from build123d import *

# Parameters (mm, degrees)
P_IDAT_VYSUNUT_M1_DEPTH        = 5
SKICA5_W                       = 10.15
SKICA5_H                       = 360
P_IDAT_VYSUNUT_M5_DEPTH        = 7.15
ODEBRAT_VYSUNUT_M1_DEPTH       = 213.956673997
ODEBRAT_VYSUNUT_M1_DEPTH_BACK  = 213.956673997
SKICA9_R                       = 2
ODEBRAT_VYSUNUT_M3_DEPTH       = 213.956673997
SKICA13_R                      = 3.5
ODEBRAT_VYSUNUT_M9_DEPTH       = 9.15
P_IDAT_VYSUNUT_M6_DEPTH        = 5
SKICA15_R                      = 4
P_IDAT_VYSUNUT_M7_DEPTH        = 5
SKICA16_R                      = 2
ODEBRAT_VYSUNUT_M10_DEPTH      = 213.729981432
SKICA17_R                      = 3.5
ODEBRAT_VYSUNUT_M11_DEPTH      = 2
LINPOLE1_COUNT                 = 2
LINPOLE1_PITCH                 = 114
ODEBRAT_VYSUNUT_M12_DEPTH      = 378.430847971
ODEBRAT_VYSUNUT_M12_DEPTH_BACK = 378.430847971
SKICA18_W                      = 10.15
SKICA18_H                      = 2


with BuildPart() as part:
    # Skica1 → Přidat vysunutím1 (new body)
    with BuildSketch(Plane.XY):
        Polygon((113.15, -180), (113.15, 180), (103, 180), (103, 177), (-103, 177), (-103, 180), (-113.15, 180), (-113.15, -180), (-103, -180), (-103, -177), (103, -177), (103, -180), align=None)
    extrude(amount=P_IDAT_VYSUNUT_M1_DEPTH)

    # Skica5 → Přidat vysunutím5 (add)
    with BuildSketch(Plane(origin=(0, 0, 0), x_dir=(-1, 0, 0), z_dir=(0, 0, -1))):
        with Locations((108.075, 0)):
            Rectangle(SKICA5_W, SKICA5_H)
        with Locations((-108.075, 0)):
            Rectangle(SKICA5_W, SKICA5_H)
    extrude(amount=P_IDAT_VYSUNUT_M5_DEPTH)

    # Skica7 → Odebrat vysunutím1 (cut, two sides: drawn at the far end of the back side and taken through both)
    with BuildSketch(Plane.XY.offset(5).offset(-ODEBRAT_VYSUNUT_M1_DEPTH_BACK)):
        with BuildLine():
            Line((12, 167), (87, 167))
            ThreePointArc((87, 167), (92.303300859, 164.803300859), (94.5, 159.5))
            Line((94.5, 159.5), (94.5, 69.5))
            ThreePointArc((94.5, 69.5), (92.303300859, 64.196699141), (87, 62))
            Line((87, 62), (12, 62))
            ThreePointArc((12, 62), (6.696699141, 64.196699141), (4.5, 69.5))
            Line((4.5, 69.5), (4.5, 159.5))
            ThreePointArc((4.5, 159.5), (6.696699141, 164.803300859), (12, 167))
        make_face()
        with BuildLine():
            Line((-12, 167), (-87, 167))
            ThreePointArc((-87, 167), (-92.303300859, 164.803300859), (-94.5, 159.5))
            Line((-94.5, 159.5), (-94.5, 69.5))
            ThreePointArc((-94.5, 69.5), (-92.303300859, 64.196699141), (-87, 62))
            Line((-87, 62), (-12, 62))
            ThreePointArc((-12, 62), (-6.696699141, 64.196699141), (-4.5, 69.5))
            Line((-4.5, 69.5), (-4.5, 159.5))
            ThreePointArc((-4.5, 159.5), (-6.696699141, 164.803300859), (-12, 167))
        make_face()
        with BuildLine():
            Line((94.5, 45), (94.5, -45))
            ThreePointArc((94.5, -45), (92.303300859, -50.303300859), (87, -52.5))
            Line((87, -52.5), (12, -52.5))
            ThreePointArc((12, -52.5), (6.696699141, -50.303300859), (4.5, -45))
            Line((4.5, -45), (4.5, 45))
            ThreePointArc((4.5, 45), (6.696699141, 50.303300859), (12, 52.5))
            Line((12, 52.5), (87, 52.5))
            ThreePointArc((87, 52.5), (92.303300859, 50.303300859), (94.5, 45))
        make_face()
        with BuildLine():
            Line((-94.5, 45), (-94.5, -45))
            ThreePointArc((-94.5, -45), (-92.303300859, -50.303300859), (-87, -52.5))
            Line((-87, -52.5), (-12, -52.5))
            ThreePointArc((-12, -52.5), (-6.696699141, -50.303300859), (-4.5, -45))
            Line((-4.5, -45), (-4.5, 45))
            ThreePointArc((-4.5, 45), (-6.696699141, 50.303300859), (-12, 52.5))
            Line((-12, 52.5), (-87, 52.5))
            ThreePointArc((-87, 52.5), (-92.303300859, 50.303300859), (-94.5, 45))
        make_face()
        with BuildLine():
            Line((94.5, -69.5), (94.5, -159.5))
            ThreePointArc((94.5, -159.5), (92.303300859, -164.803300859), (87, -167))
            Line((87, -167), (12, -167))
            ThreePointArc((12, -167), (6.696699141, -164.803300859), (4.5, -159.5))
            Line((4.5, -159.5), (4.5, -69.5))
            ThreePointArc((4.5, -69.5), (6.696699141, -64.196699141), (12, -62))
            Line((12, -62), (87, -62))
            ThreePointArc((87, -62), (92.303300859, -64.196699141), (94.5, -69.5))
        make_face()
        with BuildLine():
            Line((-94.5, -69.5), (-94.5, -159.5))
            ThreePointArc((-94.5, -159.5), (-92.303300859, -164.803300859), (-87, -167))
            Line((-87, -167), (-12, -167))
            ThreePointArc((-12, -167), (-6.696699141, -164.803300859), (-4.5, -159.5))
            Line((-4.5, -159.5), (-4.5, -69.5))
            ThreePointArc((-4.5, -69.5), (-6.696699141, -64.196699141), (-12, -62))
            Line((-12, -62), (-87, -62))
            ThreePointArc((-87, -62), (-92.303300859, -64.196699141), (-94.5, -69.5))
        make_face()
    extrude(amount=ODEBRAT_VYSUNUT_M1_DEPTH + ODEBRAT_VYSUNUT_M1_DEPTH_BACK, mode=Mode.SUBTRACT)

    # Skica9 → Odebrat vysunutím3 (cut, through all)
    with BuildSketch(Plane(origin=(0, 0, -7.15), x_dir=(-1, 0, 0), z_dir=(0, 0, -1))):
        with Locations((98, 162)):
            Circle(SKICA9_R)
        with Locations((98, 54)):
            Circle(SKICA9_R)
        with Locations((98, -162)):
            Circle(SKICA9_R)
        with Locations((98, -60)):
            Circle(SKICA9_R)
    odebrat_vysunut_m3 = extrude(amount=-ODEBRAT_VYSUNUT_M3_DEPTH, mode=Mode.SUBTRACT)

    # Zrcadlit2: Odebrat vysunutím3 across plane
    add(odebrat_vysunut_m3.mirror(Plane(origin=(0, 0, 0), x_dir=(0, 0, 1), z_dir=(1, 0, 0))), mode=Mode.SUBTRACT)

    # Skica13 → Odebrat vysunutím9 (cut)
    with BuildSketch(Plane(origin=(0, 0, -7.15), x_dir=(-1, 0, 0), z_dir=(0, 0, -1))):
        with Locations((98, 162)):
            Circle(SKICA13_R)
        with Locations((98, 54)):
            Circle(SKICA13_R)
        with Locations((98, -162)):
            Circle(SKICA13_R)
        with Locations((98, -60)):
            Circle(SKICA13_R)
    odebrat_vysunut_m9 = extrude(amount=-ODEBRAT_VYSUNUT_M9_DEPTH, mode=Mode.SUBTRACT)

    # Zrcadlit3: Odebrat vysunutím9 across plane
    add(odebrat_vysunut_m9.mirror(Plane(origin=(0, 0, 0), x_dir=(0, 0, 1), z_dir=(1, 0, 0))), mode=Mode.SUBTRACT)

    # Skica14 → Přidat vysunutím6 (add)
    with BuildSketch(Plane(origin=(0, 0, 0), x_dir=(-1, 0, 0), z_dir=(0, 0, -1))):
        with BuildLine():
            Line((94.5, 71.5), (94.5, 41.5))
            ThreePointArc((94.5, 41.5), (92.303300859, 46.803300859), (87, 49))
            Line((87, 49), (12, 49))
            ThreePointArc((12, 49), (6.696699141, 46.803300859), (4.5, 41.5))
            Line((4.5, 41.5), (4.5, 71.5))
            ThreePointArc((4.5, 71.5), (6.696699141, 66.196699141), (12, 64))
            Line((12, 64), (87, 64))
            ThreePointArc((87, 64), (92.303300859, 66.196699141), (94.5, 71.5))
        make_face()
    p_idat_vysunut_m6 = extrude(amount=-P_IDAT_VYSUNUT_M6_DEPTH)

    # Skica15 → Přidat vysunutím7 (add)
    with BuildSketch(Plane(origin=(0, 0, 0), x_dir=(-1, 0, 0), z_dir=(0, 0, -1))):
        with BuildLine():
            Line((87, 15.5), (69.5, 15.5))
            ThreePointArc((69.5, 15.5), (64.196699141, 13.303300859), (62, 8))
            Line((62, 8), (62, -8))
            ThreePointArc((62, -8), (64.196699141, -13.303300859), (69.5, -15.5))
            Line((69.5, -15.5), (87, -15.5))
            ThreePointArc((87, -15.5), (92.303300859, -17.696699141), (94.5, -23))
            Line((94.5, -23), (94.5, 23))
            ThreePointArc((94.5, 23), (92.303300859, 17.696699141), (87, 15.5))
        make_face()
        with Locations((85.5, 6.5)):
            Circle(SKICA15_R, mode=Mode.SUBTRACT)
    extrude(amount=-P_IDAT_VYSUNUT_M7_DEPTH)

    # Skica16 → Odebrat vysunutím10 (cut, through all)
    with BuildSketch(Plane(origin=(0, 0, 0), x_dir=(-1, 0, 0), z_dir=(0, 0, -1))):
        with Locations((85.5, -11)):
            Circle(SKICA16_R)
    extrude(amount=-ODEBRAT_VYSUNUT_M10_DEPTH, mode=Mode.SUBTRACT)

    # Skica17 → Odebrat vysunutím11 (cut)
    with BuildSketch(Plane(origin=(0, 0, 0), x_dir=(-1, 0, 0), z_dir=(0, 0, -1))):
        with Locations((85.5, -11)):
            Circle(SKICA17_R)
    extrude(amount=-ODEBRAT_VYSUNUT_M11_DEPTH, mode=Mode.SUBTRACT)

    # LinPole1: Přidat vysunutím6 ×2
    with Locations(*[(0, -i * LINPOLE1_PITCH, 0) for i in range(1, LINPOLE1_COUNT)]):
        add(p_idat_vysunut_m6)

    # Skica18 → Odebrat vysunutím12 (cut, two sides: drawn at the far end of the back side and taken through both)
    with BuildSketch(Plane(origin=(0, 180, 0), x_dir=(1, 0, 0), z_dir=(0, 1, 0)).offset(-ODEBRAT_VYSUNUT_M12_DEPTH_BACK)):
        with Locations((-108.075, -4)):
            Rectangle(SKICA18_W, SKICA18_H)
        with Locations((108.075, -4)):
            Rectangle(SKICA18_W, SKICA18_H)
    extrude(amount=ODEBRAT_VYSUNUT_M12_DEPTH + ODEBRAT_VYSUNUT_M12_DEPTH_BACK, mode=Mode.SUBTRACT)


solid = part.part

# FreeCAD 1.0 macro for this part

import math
import FreeCAD as App
import Part
import Sketcher

doc = App.newDocument("Part")
body = doc.addObject("PartDesign::Body", "Body")

# Sketch on XY plane
sketch1 = doc.addObject("Sketcher::SketchObject", "Sketch")
body.addObject(sketch1)
sketch1.AttachmentSupport = (doc.XY_Plane, [""])
sketch1.MapMode = "FlatFace"
sketch1.addGeometry(Part.LineSegment(App.Vector(113.15, -180, 0), App.Vector(113.15, 180, 0)), False)
sketch1.addGeometry(Part.LineSegment(App.Vector(113.15, 180, 0), App.Vector(103, 180, 0)), False)
sketch1.addGeometry(Part.LineSegment(App.Vector(103, 180, 0), App.Vector(103, 177, 0)), False)
sketch1.addGeometry(Part.LineSegment(App.Vector(103, 177, 0), App.Vector(-103, 177, 0)), False)
sketch1.addGeometry(Part.LineSegment(App.Vector(-103, 177, 0), App.Vector(-103, 180, 0)), False)
sketch1.addGeometry(Part.LineSegment(App.Vector(-103, 180, 0), App.Vector(-113.15, 180, 0)), False)
sketch1.addGeometry(Part.LineSegment(App.Vector(-113.15, 180, 0), App.Vector(-113.15, -180, 0)), False)
sketch1.addGeometry(Part.LineSegment(App.Vector(-113.15, -180, 0), App.Vector(-103, -180, 0)), False)
sketch1.addGeometry(Part.LineSegment(App.Vector(-103, -180, 0), App.Vector(-103, -177, 0)), False)
sketch1.addGeometry(Part.LineSegment(App.Vector(-103, -177, 0), App.Vector(103, -177, 0)), False)
sketch1.addGeometry(Part.LineSegment(App.Vector(103, -177, 0), App.Vector(103, -180, 0)), False)
sketch1.addGeometry(Part.LineSegment(App.Vector(103, -180, 0), App.Vector(113.15, -180, 0)), False)
sketch1.addConstraint(Sketcher.Constraint("Coincident", 0, 2, 1, 1))
sketch1.addConstraint(Sketcher.Constraint("Coincident", 1, 2, 2, 1))
sketch1.addConstraint(Sketcher.Constraint("Coincident", 2, 2, 3, 1))
sketch1.addConstraint(Sketcher.Constraint("Coincident", 3, 2, 4, 1))
sketch1.addConstraint(Sketcher.Constraint("Coincident", 4, 2, 5, 1))
sketch1.addConstraint(Sketcher.Constraint("Coincident", 5, 2, 6, 1))
sketch1.addConstraint(Sketcher.Constraint("Coincident", 6, 2, 7, 1))
sketch1.addConstraint(Sketcher.Constraint("Coincident", 7, 2, 8, 1))
sketch1.addConstraint(Sketcher.Constraint("Coincident", 8, 2, 9, 1))
sketch1.addConstraint(Sketcher.Constraint("Coincident", 9, 2, 10, 1))
sketch1.addConstraint(Sketcher.Constraint("Coincident", 10, 2, 11, 1))
sketch1.addConstraint(Sketcher.Constraint("Coincident", 11, 2, 0, 1))
sketch1.addConstraint(Sketcher.Constraint("Vertical", 0))
sketch1.addConstraint(Sketcher.Constraint("Horizontal", 1))
sketch1.addConstraint(Sketcher.Constraint("Vertical", 2))
sketch1.addConstraint(Sketcher.Constraint("Horizontal", 3))
sketch1.addConstraint(Sketcher.Constraint("Vertical", 4))
sketch1.addConstraint(Sketcher.Constraint("Horizontal", 5))
sketch1.addConstraint(Sketcher.Constraint("Vertical", 6))
sketch1.addConstraint(Sketcher.Constraint("Horizontal", 7))
sketch1.addConstraint(Sketcher.Constraint("Vertical", 8))
sketch1.addConstraint(Sketcher.Constraint("Horizontal", 9))
sketch1.addConstraint(Sketcher.Constraint("Vertical", 10))
sketch1.addConstraint(Sketcher.Constraint("Horizontal", 11))
sketch1.addConstraint(Sketcher.Constraint("Symmetric", 0, 2, 6, 2, -1, 1))
sketch1.addConstraint(Sketcher.Constraint("Symmetric", 2, 2, 8, 2, -1, 1))
sketch1.addConstraint(Sketcher.Constraint("Symmetric", 4, 2, 10, 2, -1, 1))
sketch1.addConstraint(Sketcher.Constraint("Symmetric", 1, 2, 4, 2, -2))
sketch1.addConstraint(Sketcher.Constraint("DistanceX", 3, 2, 3, 1, 206.0))
sketch1.addConstraint(Sketcher.Constraint("DistanceY", 0, 1, 0, 2, 360.0))
sketch1.addConstraint(Sketcher.Constraint("DistanceY", 2, 2, 2, 1, 3.0))
sketch1.addConstraint(Sketcher.Constraint("DistanceX", 1, 2, 1, 1, 10.15))
pad1 = doc.addObject("PartDesign::Pad", "Pad")
body.addObject(pad1)
pad1.Profile = sketch1
pad1.Length = 5

# Sketch on XY plane
sketch2 = doc.addObject("Sketcher::SketchObject", "Sketch001")
body.addObject(sketch2)
sketch2.AttachmentSupport = (doc.XY_Plane, [""])
sketch2.MapMode = "FlatFace"
sketch2.addGeometry(Part.LineSegment(App.Vector(-103, 180, 0), App.Vector(-103, -180, 0)), False)
sketch2.addGeometry(Part.LineSegment(App.Vector(-103, -180, 0), App.Vector(-113.15, -180, 0)), False)
sketch2.addGeometry(Part.LineSegment(App.Vector(-113.15, -180, 0), App.Vector(-113.15, 180, 0)), False)
sketch2.addGeometry(Part.LineSegment(App.Vector(-113.15, 180, 0), App.Vector(-103, 180, 0)), False)
sketch2.addGeometry(Part.LineSegment(App.Vector(113.15, 180, 0), App.Vector(113.15, -180, 0)), False)
sketch2.addGeometry(Part.LineSegment(App.Vector(113.15, -180, 0), App.Vector(103, -180, 0)), False)
sketch2.addGeometry(Part.LineSegment(App.Vector(103, -180, 0), App.Vector(103, 180, 0)), False)
sketch2.addGeometry(Part.LineSegment(App.Vector(103, 180, 0), App.Vector(113.15, 180, 0)), False)
sketch2.addConstraint(Sketcher.Constraint("Coincident", 0, 2, 1, 1))
sketch2.addConstraint(Sketcher.Constraint("Coincident", 1, 2, 2, 1))
sketch2.addConstraint(Sketcher.Constraint("Coincident", 2, 2, 3, 1))
sketch2.addConstraint(Sketcher.Constraint("Coincident", 3, 2, 0, 1))
sketch2.addConstraint(Sketcher.Constraint("Coincident", 4, 2, 5, 1))
sketch2.addConstraint(Sketcher.Constraint("Coincident", 5, 2, 6, 1))
sketch2.addConstraint(Sketcher.Constraint("Coincident", 6, 2, 7, 1))
sketch2.addConstraint(Sketcher.Constraint("Coincident", 7, 2, 4, 1))
sketch2.addConstraint(Sketcher.Constraint("Vertical", 0))
sketch2.addConstraint(Sketcher.Constraint("Horizontal", 1))
sketch2.addConstraint(Sketcher.Constraint("Vertical", 2))
sketch2.addConstraint(Sketcher.Constraint("Horizontal", 3))
sketch2.addConstraint(Sketcher.Constraint("Vertical", 4))
sketch2.addConstraint(Sketcher.Constraint("Horizontal", 5))
sketch2.addConstraint(Sketcher.Constraint("Vertical", 6))
sketch2.addConstraint(Sketcher.Constraint("Horizontal", 7))
sketch2.addConstraint(Sketcher.Constraint("Symmetric", 2, 2, 4, 2, -1, 1))
sketch2.addConstraint(Sketcher.Constraint("Symmetric", 0, 2, 6, 2, -1, 1))
sketch2.addConstraint(Sketcher.Constraint("Horizontal", 1, 2, 4, 2))
sketch2.addConstraint(Sketcher.Constraint("DistanceY", 0, 2, 0, 1, 360.0))
sketch2.addConstraint(Sketcher.Constraint("DistanceX", 0, 2, -1, 1, 103.0))
sketch2.addConstraint(Sketcher.Constraint("DistanceX", 1, 2, 1, 1, 10.15))
pad2 = doc.addObject("PartDesign::Pad", "Pad001")
body.addObject(pad2)
pad2.Profile = sketch2
pad2.Length = 7.15
pad2.Reversed = True

# Sketch on XY plane
sketch3 = doc.addObject("Sketcher::SketchObject", "Sketch002")
body.addObject(sketch3)
sketch3.AttachmentSupport = (doc.XY_Plane, [""])
sketch3.MapMode = "FlatFace"
sketch3.AttachmentOffset = App.Placement(App.Vector(0, 0, 5), App.Rotation())
sketch3.addGeometry(Part.LineSegment(App.Vector(87, 167, 0), App.Vector(12, 167, 0)), False)
sketch3.addGeometry(Part.ArcOfCircle(Part.Circle(App.Vector(12, 159.5, 0), App.Vector(0, 0, 1), 7.5), math.radians(90), math.radians(180)), False)
sketch3.addGeometry(Part.LineSegment(App.Vector(4.5, 159.5, 0), App.Vector(4.5, 69.5, 0)), False)
sketch3.addGeometry(Part.ArcOfCircle(Part.Circle(App.Vector(12, 69.5, 0), App.Vector(0, 0, 1), 7.5), math.radians(180), math.radians(270)), False)
sketch3.addGeometry(Part.LineSegment(App.Vector(12, 62, 0), App.Vector(87, 62, 0)), False)
sketch3.addGeometry(Part.ArcOfCircle(Part.Circle(App.Vector(87, 69.5, 0), App.Vector(0, 0, 1), 7.5), math.radians(-90), math.radians(0)), False)
sketch3.addGeometry(Part.LineSegment(App.Vector(94.5, 69.5, 0), App.Vector(94.5, 159.5, 0)), False)
sketch3.addGeometry(Part.ArcOfCircle(Part.Circle(App.Vector(87, 159.5, 0), App.Vector(0, 0, 1), 7.5), math.radians(0), math.radians(90)), False)
sketch3.addGeometry(Part.LineSegment(App.Vector(-12, 167, 0), App.Vector(-87, 167, 0)), False)
sketch3.addGeometry(Part.ArcOfCircle(Part.Circle(App.Vector(-87, 159.5, 0), App.Vector(0, 0, 1), 7.5), math.radians(90), math.radians(180)), False)
sketch3.addGeometry(Part.LineSegment(App.Vector(-94.5, 159.5, 0), App.Vector(-94.5, 69.5, 0)), False)
sketch3.addGeometry(Part.ArcOfCircle(Part.Circle(App.Vector(-87, 69.5, 0), App.Vector(0, 0, 1), 7.5), math.radians(180), math.radians(270)), False)
sketch3.addGeometry(Part.LineSegment(App.Vector(-87, 62, 0), App.Vector(-12, 62, 0)), False)
sketch3.addGeometry(Part.ArcOfCircle(Part.Circle(App.Vector(-12, 69.5, 0), App.Vector(0, 0, 1), 7.5), math.radians(-90), math.radians(0)), False)
sketch3.addGeometry(Part.LineSegment(App.Vector(-4.5, 69.5, 0), App.Vector(-4.5, 159.5, 0)), False)
sketch3.addGeometry(Part.ArcOfCircle(Part.Circle(App.Vector(-12, 159.5, 0), App.Vector(0, 0, 1), 7.5), math.radians(0), math.radians(90)), False)
sketch3.addGeometry(Part.LineSegment(App.Vector(94.5, -45, 0), App.Vector(94.5, 45, 0)), False)
sketch3.addGeometry(Part.ArcOfCircle(Part.Circle(App.Vector(87, 45, 0), App.Vector(0, 0, 1), 7.5), math.radians(0), math.radians(90)), False)
sketch3.addGeometry(Part.LineSegment(App.Vector(87, 52.5, 0), App.Vector(12, 52.5, 0)), False)
sketch3.addGeometry(Part.ArcOfCircle(Part.Circle(App.Vector(12, 45, 0), App.Vector(0, 0, 1), 7.5), math.radians(90), math.radians(180)), False)
sketch3.addGeometry(Part.LineSegment(App.Vector(4.5, 45, 0), App.Vector(4.5, -45, 0)), False)
sketch3.addGeometry(Part.ArcOfCircle(Part.Circle(App.Vector(12, -45, 0), App.Vector(0, 0, 1), 7.5), math.radians(180), math.radians(270)), False)
sketch3.addGeometry(Part.LineSegment(App.Vector(12, -52.5, 0), App.Vector(87, -52.5, 0)), False)
sketch3.addGeometry(Part.ArcOfCircle(Part.Circle(App.Vector(87, -45, 0), App.Vector(0, 0, 1), 7.5), math.radians(-90), math.radians(0)), False)
sketch3.addGeometry(Part.LineSegment(App.Vector(-94.5, 45, 0), App.Vector(-94.5, -45, 0)), False)
sketch3.addGeometry(Part.ArcOfCircle(Part.Circle(App.Vector(-87, -45, 0), App.Vector(0, 0, 1), 7.5), math.radians(180), math.radians(270)), False)
sketch3.addGeometry(Part.LineSegment(App.Vector(-87, -52.5, 0), App.Vector(-12, -52.5, 0)), False)
sketch3.addGeometry(Part.ArcOfCircle(Part.Circle(App.Vector(-12, -45, 0), App.Vector(0, 0, 1), 7.5), math.radians(-90), math.radians(0)), False)
sketch3.addGeometry(Part.LineSegment(App.Vector(-4.5, -45, 0), App.Vector(-4.5, 45, 0)), False)
sketch3.addGeometry(Part.ArcOfCircle(Part.Circle(App.Vector(-12, 45, 0), App.Vector(0, 0, 1), 7.5), math.radians(0), math.radians(90)), False)
sketch3.addGeometry(Part.LineSegment(App.Vector(-12, 52.5, 0), App.Vector(-87, 52.5, 0)), False)
sketch3.addGeometry(Part.ArcOfCircle(Part.Circle(App.Vector(-87, 45, 0), App.Vector(0, 0, 1), 7.5), math.radians(90), math.radians(180)), False)
sketch3.addGeometry(Part.LineSegment(App.Vector(94.5, -159.5, 0), App.Vector(94.5, -69.5, 0)), False)
sketch3.addGeometry(Part.ArcOfCircle(Part.Circle(App.Vector(87, -69.5, 0), App.Vector(0, 0, 1), 7.5), math.radians(0), math.radians(90)), False)
sketch3.addGeometry(Part.LineSegment(App.Vector(87, -62, 0), App.Vector(12, -62, 0)), False)
sketch3.addGeometry(Part.ArcOfCircle(Part.Circle(App.Vector(12, -69.5, 0), App.Vector(0, 0, 1), 7.5), math.radians(90), math.radians(180)), False)
sketch3.addGeometry(Part.LineSegment(App.Vector(4.5, -69.5, 0), App.Vector(4.5, -159.5, 0)), False)
sketch3.addGeometry(Part.ArcOfCircle(Part.Circle(App.Vector(12, -159.5, 0), App.Vector(0, 0, 1), 7.5), math.radians(180), math.radians(270)), False)
sketch3.addGeometry(Part.LineSegment(App.Vector(12, -167, 0), App.Vector(87, -167, 0)), False)
sketch3.addGeometry(Part.ArcOfCircle(Part.Circle(App.Vector(87, -159.5, 0), App.Vector(0, 0, 1), 7.5), math.radians(-90), math.radians(0)), False)
sketch3.addGeometry(Part.LineSegment(App.Vector(-94.5, -69.5, 0), App.Vector(-94.5, -159.5, 0)), False)
sketch3.addGeometry(Part.ArcOfCircle(Part.Circle(App.Vector(-87, -159.5, 0), App.Vector(0, 0, 1), 7.5), math.radians(180), math.radians(270)), False)
sketch3.addGeometry(Part.LineSegment(App.Vector(-87, -167, 0), App.Vector(-12, -167, 0)), False)
sketch3.addGeometry(Part.ArcOfCircle(Part.Circle(App.Vector(-12, -159.5, 0), App.Vector(0, 0, 1), 7.5), math.radians(-90), math.radians(0)), False)
sketch3.addGeometry(Part.LineSegment(App.Vector(-4.5, -159.5, 0), App.Vector(-4.5, -69.5, 0)), False)
sketch3.addGeometry(Part.ArcOfCircle(Part.Circle(App.Vector(-12, -69.5, 0), App.Vector(0, 0, 1), 7.5), math.radians(0), math.radians(90)), False)
sketch3.addGeometry(Part.LineSegment(App.Vector(-12, -62, 0), App.Vector(-87, -62, 0)), False)
sketch3.addGeometry(Part.ArcOfCircle(Part.Circle(App.Vector(-87, -69.5, 0), App.Vector(0, 0, 1), 7.5), math.radians(90), math.radians(180)), False)
sketch3.addConstraint(Sketcher.Constraint("Tangent", 0, 2, 1, 1))
sketch3.addConstraint(Sketcher.Constraint("Tangent", 1, 2, 2, 1))
sketch3.addConstraint(Sketcher.Constraint("Tangent", 2, 2, 3, 1))
sketch3.addConstraint(Sketcher.Constraint("Tangent", 3, 2, 4, 1))
sketch3.addConstraint(Sketcher.Constraint("Tangent", 4, 2, 5, 1))
sketch3.addConstraint(Sketcher.Constraint("Tangent", 5, 2, 6, 1))
sketch3.addConstraint(Sketcher.Constraint("Tangent", 6, 2, 7, 1))
sketch3.addConstraint(Sketcher.Constraint("Tangent", 7, 2, 0, 1))
sketch3.addConstraint(Sketcher.Constraint("Tangent", 8, 2, 9, 1))
sketch3.addConstraint(Sketcher.Constraint("Tangent", 9, 2, 10, 1))
sketch3.addConstraint(Sketcher.Constraint("Tangent", 10, 2, 11, 1))
sketch3.addConstraint(Sketcher.Constraint("Tangent", 11, 2, 12, 1))
sketch3.addConstraint(Sketcher.Constraint("Tangent", 12, 2, 13, 1))
sketch3.addConstraint(Sketcher.Constraint("Tangent", 13, 2, 14, 1))
sketch3.addConstraint(Sketcher.Constraint("Tangent", 14, 2, 15, 1))
sketch3.addConstraint(Sketcher.Constraint("Tangent", 15, 2, 8, 1))
sketch3.addConstraint(Sketcher.Constraint("Tangent", 16, 2, 17, 1))
sketch3.addConstraint(Sketcher.Constraint("Tangent", 17, 2, 18, 1))
sketch3.addConstraint(Sketcher.Constraint("Tangent", 18, 2, 19, 1))
sketch3.addConstraint(Sketcher.Constraint("Tangent", 19, 2, 20, 1))
sketch3.addConstraint(Sketcher.Constraint("Tangent", 20, 2, 21, 1))
sketch3.addConstraint(Sketcher.Constraint("Tangent", 21, 2, 22, 1))
sketch3.addConstraint(Sketcher.Constraint("Tangent", 22, 2, 23, 1))
sketch3.addConstraint(Sketcher.Constraint("Tangent", 23, 2, 16, 1))
sketch3.addConstraint(Sketcher.Constraint("Tangent", 24, 2, 25, 1))
sketch3.addConstraint(Sketcher.Constraint("Tangent", 25, 2, 26, 1))
sketch3.addConstraint(Sketcher.Constraint("Tangent", 26, 2, 27, 1))
sketch3.addConstraint(Sketcher.Constraint("Tangent", 27, 2, 28, 1))
sketch3.addConstraint(Sketcher.Constraint("Tangent", 28, 2, 29, 1))
sketch3.addConstraint(Sketcher.Constraint("Tangent", 29, 2, 30, 1))
sketch3.addConstraint(Sketcher.Constraint("Tangent", 30, 2, 31, 1))
sketch3.addConstraint(Sketcher.Constraint("Tangent", 31, 2, 24, 1))
sketch3.addConstraint(Sketcher.Constraint("Tangent", 32, 2, 33, 1))
sketch3.addConstraint(Sketcher.Constraint("Tangent", 33, 2, 34, 1))
sketch3.addConstraint(Sketcher.Constraint("Tangent", 34, 2, 35, 1))
sketch3.addConstraint(Sketcher.Constraint("Tangent", 35, 2, 36, 1))
sketch3.addConstraint(Sketcher.Constraint("Tangent", 36, 2, 37, 1))
sketch3.addConstraint(Sketcher.Constraint("Tangent", 37, 2, 38, 1))
sketch3.addConstraint(Sketcher.Constraint("Tangent", 38, 2, 39, 1))
sketch3.addConstraint(Sketcher.Constraint("Tangent", 39, 2, 32, 1))
sketch3.addConstraint(Sketcher.Constraint("Tangent", 40, 2, 41, 1))
sketch3.addConstraint(Sketcher.Constraint("Tangent", 41, 2, 42, 1))
sketch3.addConstraint(Sketcher.Constraint("Tangent", 42, 2, 43, 1))
sketch3.addConstraint(Sketcher.Constraint("Tangent", 43, 2, 44, 1))
sketch3.addConstraint(Sketcher.Constraint("Tangent", 44, 2, 45, 1))
sketch3.addConstraint(Sketcher.Constraint("Tangent", 45, 2, 46, 1))
sketch3.addConstraint(Sketcher.Constraint("Tangent", 46, 2, 47, 1))
sketch3.addConstraint(Sketcher.Constraint("Tangent", 47, 2, 40, 1))
sketch3.addConstraint(Sketcher.Constraint("Horizontal", 0))
sketch3.addConstraint(Sketcher.Constraint("Vertical", 2))
sketch3.addConstraint(Sketcher.Constraint("Horizontal", 4))
sketch3.addConstraint(Sketcher.Constraint("Vertical", 6))
sketch3.addConstraint(Sketcher.Constraint("Horizontal", 8))
sketch3.addConstraint(Sketcher.Constraint("Vertical", 10))
sketch3.addConstraint(Sketcher.Constraint("Horizontal", 12))
sketch3.addConstraint(Sketcher.Constraint("Vertical", 14))
sketch3.addConstraint(Sketcher.Constraint("Vertical", 16))
sketch3.addConstraint(Sketcher.Constraint("Horizontal", 18))
sketch3.addConstraint(Sketcher.Constraint("Vertical", 20))
sketch3.addConstraint(Sketcher.Constraint("Horizontal", 22))
sketch3.addConstraint(Sketcher.Constraint("Vertical", 24))
sketch3.addConstraint(Sketcher.Constraint("Horizontal", 26))
sketch3.addConstraint(Sketcher.Constraint("Vertical", 28))
sketch3.addConstraint(Sketcher.Constraint("Horizontal", 30))
sketch3.addConstraint(Sketcher.Constraint("Vertical", 32))
sketch3.addConstraint(Sketcher.Constraint("Horizontal", 34))
sketch3.addConstraint(Sketcher.Constraint("Vertical", 36))
sketch3.addConstraint(Sketcher.Constraint("Horizontal", 38))
sketch3.addConstraint(Sketcher.Constraint("Vertical", 40))
sketch3.addConstraint(Sketcher.Constraint("Horizontal", 42))
sketch3.addConstraint(Sketcher.Constraint("Vertical", 44))
sketch3.addConstraint(Sketcher.Constraint("Horizontal", 46))
sketch3.addConstraint(Sketcher.Constraint("Equal", 1, 3))
sketch3.addConstraint(Sketcher.Constraint("Equal", 3, 5))
sketch3.addConstraint(Sketcher.Constraint("Equal", 5, 7))
sketch3.addConstraint(Sketcher.Constraint("Equal", 7, 9))
sketch3.addConstraint(Sketcher.Constraint("Equal", 9, 11))
sketch3.addConstraint(Sketcher.Constraint("Equal", 11, 13))
sketch3.addConstraint(Sketcher.Constraint("Equal", 13, 15))
sketch3.addConstraint(Sketcher.Constraint("Equal", 15, 17))
sketch3.addConstraint(Sketcher.Constraint("Equal", 17, 19))
sketch3.addConstraint(Sketcher.Constraint("Equal", 19, 21))
sketch3.addConstraint(Sketcher.Constraint("Equal", 21, 23))
sketch3.addConstraint(Sketcher.Constraint("Equal", 23, 25))
sketch3.addConstraint(Sketcher.Constraint("Equal", 25, 27))
sketch3.addConstraint(Sketcher.Constraint("Equal", 27, 29))
sketch3.addConstraint(Sketcher.Constraint("Equal", 29, 31))
sketch3.addConstraint(Sketcher.Constraint("Equal", 31, 33))
sketch3.addConstraint(Sketcher.Constraint("Equal", 33, 35))
sketch3.addConstraint(Sketcher.Constraint("Equal", 35, 37))
sketch3.addConstraint(Sketcher.Constraint("Equal", 37, 39))
sketch3.addConstraint(Sketcher.Constraint("Equal", 39, 41))
sketch3.addConstraint(Sketcher.Constraint("Equal", 41, 43))
sketch3.addConstraint(Sketcher.Constraint("Equal", 43, 45))
sketch3.addConstraint(Sketcher.Constraint("Equal", 45, 47))
sketch3.addConstraint(Sketcher.Constraint("Symmetric", 17, 3, 25, 3, -1, 1))
sketch3.addConstraint(Sketcher.Constraint("Symmetric", 21, 3, 29, 3, -1, 1))
sketch3.addConstraint(Sketcher.Constraint("Symmetric", 11, 3, 33, 3, -1, 1))
sketch3.addConstraint(Sketcher.Constraint("Symmetric", 15, 3, 37, 3, -1, 1))
sketch3.addConstraint(Sketcher.Constraint("Symmetric", 7, 3, 41, 3, -1, 1))
sketch3.addConstraint(Sketcher.Constraint("Symmetric", 3, 3, 45, 3, -1, 1))
sketch3.addConstraint(Sketcher.Constraint("Symmetric", 7, 3, 9, 3, -2))
sketch3.addConstraint(Sketcher.Constraint("Symmetric", 3, 3, 13, 3, -2))
sketch3.addConstraint(Sketcher.Constraint("Horizontal", 23, 3, 25, 3))
sketch3.addConstraint(Sketcher.Constraint("Vertical", 7, 3, 17, 3))
sketch3.addConstraint(Sketcher.Constraint("Vertical", 3, 3, 19, 3))
sketch3.addConstraint(Sketcher.Constraint("Equal", 14, 16))
sketch3.addConstraint(Sketcher.Constraint("Radius", 1, 7.5))
sketch3.addConstraint(Sketcher.Constraint("DistanceX", 0, 2, 0, 1, 75.0))
sketch3.addConstraint(Sketcher.Constraint("DistanceY", 2, 2, 2, 1, 90.0))
sketch3.addConstraint(Sketcher.Constraint("DistanceX", -1, 1, 1, 3, 12.0))
sketch3.addConstraint(Sketcher.Constraint("DistanceY", -1, 1, 0, 2, 167.0))
pocket1 = doc.addObject("PartDesign::Pocket", "Pocket")
body.addObject(pocket1)
pocket1.Profile = sketch3
pocket1.Type = "ThroughAll"
pocket1.Midplane = True

# Sketch on XY plane
sketch4 = doc.addObject("Sketcher::SketchObject", "Sketch003")
body.addObject(sketch4)
sketch4.AttachmentSupport = (doc.XY_Plane, [""])
sketch4.MapMode = "FlatFace"
sketch4.AttachmentOffset = App.Placement(App.Vector(0, 0, -7.15), App.Rotation())
sketch4.addGeometry(Part.Circle(App.Vector(-98, 162, 0), App.Vector(0, 0, 1), 2), False)
sketch4.addGeometry(Part.Circle(App.Vector(-98, 54, 0), App.Vector(0, 0, 1), 2), False)
sketch4.addGeometry(Part.Circle(App.Vector(-98, -162, 0), App.Vector(0, 0, 1), 2), False)
sketch4.addGeometry(Part.Circle(App.Vector(-98, -60, 0), App.Vector(0, 0, 1), 2), False)
sketch4.addConstraint(Sketcher.Constraint("Equal", 0, 1))
sketch4.addConstraint(Sketcher.Constraint("Equal", 1, 2))
sketch4.addConstraint(Sketcher.Constraint("Equal", 2, 3))
sketch4.addConstraint(Sketcher.Constraint("Symmetric", 0, 3, 2, 3, -1))
sketch4.addConstraint(Sketcher.Constraint("Vertical", 0, 3, 1, 3))
sketch4.addConstraint(Sketcher.Constraint("Vertical", 2, 3, 3, 3))
sketch4.addConstraint(Sketcher.Constraint("Diameter", 0, 4.0))
sketch4.addConstraint(Sketcher.Constraint("DistanceX", 0, 3, -1, 1, 98.0))
sketch4.addConstraint(Sketcher.Constraint("DistanceY", -1, 1, 0, 3, 162.0))
sketch4.addConstraint(Sketcher.Constraint("DistanceY", -1, 1, 1, 3, 54.0))
sketch4.addConstraint(Sketcher.Constraint("DistanceY", 3, 3, -1, 1, 60.0))
pocket2 = doc.addObject("PartDesign::Pocket", "Pocket001")
body.addObject(pocket2)
pocket2.Profile = sketch4
pocket2.Type = "ThroughAll"
pocket2.Reversed = True
doc.recompute()

mirrored = doc.addObject("PartDesign::Mirrored", "Mirrored")
body.addObject(mirrored)
mirrored.Originals = [pocket2]
mirrored.MirrorPlane = (doc.YZ_Plane, [""])
body.Tip = mirrored

# Sketch on XY plane
sketch5 = doc.addObject("Sketcher::SketchObject", "Sketch004")
body.addObject(sketch5)
sketch5.AttachmentSupport = (doc.XY_Plane, [""])
sketch5.MapMode = "FlatFace"
sketch5.AttachmentOffset = App.Placement(App.Vector(0, 0, -7.15), App.Rotation())
sketch5.addGeometry(Part.Circle(App.Vector(-98, 162, 0), App.Vector(0, 0, 1), 3.5), False)
sketch5.addGeometry(Part.Circle(App.Vector(-98, 54, 0), App.Vector(0, 0, 1), 3.5), False)
sketch5.addGeometry(Part.Circle(App.Vector(-98, -162, 0), App.Vector(0, 0, 1), 3.5), False)
sketch5.addGeometry(Part.Circle(App.Vector(-98, -60, 0), App.Vector(0, 0, 1), 3.5), False)
sketch5.addConstraint(Sketcher.Constraint("Equal", 0, 1))
sketch5.addConstraint(Sketcher.Constraint("Equal", 1, 2))
sketch5.addConstraint(Sketcher.Constraint("Equal", 2, 3))
sketch5.addConstraint(Sketcher.Constraint("Symmetric", 0, 3, 2, 3, -1))
sketch5.addConstraint(Sketcher.Constraint("Vertical", 0, 3, 1, 3))
sketch5.addConstraint(Sketcher.Constraint("Vertical", 2, 3, 3, 3))
sketch5.addConstraint(Sketcher.Constraint("Diameter", 0, 7.0))
sketch5.addConstraint(Sketcher.Constraint("DistanceX", 0, 3, -1, 1, 98.0))
sketch5.addConstraint(Sketcher.Constraint("DistanceY", -1, 1, 0, 3, 162.0))
sketch5.addConstraint(Sketcher.Constraint("DistanceY", -1, 1, 1, 3, 54.0))
sketch5.addConstraint(Sketcher.Constraint("DistanceY", 3, 3, -1, 1, 60.0))
pocket3 = doc.addObject("PartDesign::Pocket", "Pocket002")
body.addObject(pocket3)
pocket3.Profile = sketch5
pocket3.Length = 9.15
pocket3.Reversed = True
doc.recompute()

mirrored2 = doc.addObject("PartDesign::Mirrored", "Mirrored001")
body.addObject(mirrored2)
mirrored2.Originals = [pocket3]
mirrored2.MirrorPlane = (doc.YZ_Plane, [""])
body.Tip = mirrored2

# Sketch on XY plane
sketch6 = doc.addObject("Sketcher::SketchObject", "Sketch005")
body.addObject(sketch6)
sketch6.AttachmentSupport = (doc.XY_Plane, [""])
sketch6.MapMode = "FlatFace"
sketch6.addGeometry(Part.LineSegment(App.Vector(-94.5, 41.5, 0), App.Vector(-94.5, 71.5, 0)), False)
sketch6.addGeometry(Part.ArcOfCircle(Part.Circle(App.Vector(-87, 71.5, 0), App.Vector(0, 0, 1), 7.5), math.radians(180), math.radians(270)), False)
sketch6.addGeometry(Part.LineSegment(App.Vector(-87, 64, 0), App.Vector(-12, 64, 0)), False)
sketch6.addGeometry(Part.ArcOfCircle(Part.Circle(App.Vector(-12, 71.5, 0), App.Vector(0, 0, 1), 7.5), math.radians(-90), math.radians(0)), False)
sketch6.addGeometry(Part.LineSegment(App.Vector(-4.5, 71.5, 0), App.Vector(-4.5, 41.5, 0)), False)
sketch6.addGeometry(Part.ArcOfCircle(Part.Circle(App.Vector(-12, 41.5, 0), App.Vector(0, 0, 1), 7.5), math.radians(0), math.radians(90)), False)
sketch6.addGeometry(Part.LineSegment(App.Vector(-12, 49, 0), App.Vector(-87, 49, 0)), False)
sketch6.addGeometry(Part.ArcOfCircle(Part.Circle(App.Vector(-87, 41.5, 0), App.Vector(0, 0, 1), 7.5), math.radians(90), math.radians(180)), False)
sketch6.addConstraint(Sketcher.Constraint("Tangent", 0, 2, 1, 1))
sketch6.addConstraint(Sketcher.Constraint("Tangent", 1, 2, 2, 1))
sketch6.addConstraint(Sketcher.Constraint("Tangent", 2, 2, 3, 1))
sketch6.addConstraint(Sketcher.Constraint("Tangent", 3, 2, 4, 1))
sketch6.addConstraint(Sketcher.Constraint("Tangent", 4, 2, 5, 1))
sketch6.addConstraint(Sketcher.Constraint("Tangent", 5, 2, 6, 1))
sketch6.addConstraint(Sketcher.Constraint("Tangent", 6, 2, 7, 1))
sketch6.addConstraint(Sketcher.Constraint("Tangent", 7, 2, 0, 1))
sketch6.addConstraint(Sketcher.Constraint("Vertical", 0))
sketch6.addConstraint(Sketcher.Constraint("Horizontal", 2))
sketch6.addConstraint(Sketcher.Constraint("Vertical", 4))
sketch6.addConstraint(Sketcher.Constraint("Horizontal", 6))
sketch6.addConstraint(Sketcher.Constraint("Equal", 1, 3))
sketch6.addConstraint(Sketcher.Constraint("Equal", 3, 5))
sketch6.addConstraint(Sketcher.Constraint("Equal", 5, 7))
sketch6.addConstraint(Sketcher.Constraint("Radius", 1, 7.5))
sketch6.addConstraint(Sketcher.Constraint("DistanceX", 2, 1, 2, 2, 75.0))
sketch6.addConstraint(Sketcher.Constraint("DistanceY", 0, 1, 0, 2, 30.0))
sketch6.addConstraint(Sketcher.Constraint("DistanceX", 1, 3, -1, 1, 87.0))
sketch6.addConstraint(Sketcher.Constraint("DistanceY", -1, 1, 1, 2, 64.0))
pad3 = doc.addObject("PartDesign::Pad", "Pad002")
body.addObject(pad3)
pad3.Profile = sketch6
pad3.Length = 5

# Sketch on XY plane
sketch7 = doc.addObject("Sketcher::SketchObject", "Sketch006")
body.addObject(sketch7)
sketch7.AttachmentSupport = (doc.XY_Plane, [""])
sketch7.MapMode = "FlatFace"
sketch7.addGeometry(Part.LineSegment(App.Vector(-87, 15.5, 0), App.Vector(-69.5, 15.5, 0)), False)
sketch7.addGeometry(Part.ArcOfCircle(Part.Circle(App.Vector(-69.5, 8, 0), App.Vector(0, 0, 1), 7.5), math.radians(0), math.radians(90)), False)
sketch7.addGeometry(Part.LineSegment(App.Vector(-62, 8, 0), App.Vector(-62, -8, 0)), False)
sketch7.addGeometry(Part.ArcOfCircle(Part.Circle(App.Vector(-69.5, -8, 0), App.Vector(0, 0, 1), 7.5), math.radians(-90), math.radians(0)), False)
sketch7.addGeometry(Part.LineSegment(App.Vector(-69.5, -15.5, 0), App.Vector(-87, -15.5, 0)), False)
sketch7.addGeometry(Part.ArcOfCircle(Part.Circle(App.Vector(-87, -23, 0), App.Vector(0, 0, 1), 7.5), math.radians(90), math.radians(180)), False)
sketch7.addGeometry(Part.LineSegment(App.Vector(-94.5, -23, 0), App.Vector(-94.5, 23, 0)), False)
sketch7.addGeometry(Part.ArcOfCircle(Part.Circle(App.Vector(-87, 23, 0), App.Vector(0, 0, 1), 7.5), math.radians(180), math.radians(270)), False)
sketch7.addGeometry(Part.Circle(App.Vector(-85.5, 6.5, 0), App.Vector(0, 0, 1), 4), False)
sketch7.addConstraint(Sketcher.Constraint("Tangent", 0, 2, 1, 2))
sketch7.addConstraint(Sketcher.Constraint("Tangent", 1, 1, 2, 1))
sketch7.addConstraint(Sketcher.Constraint("Tangent", 2, 2, 3, 2))
sketch7.addConstraint(Sketcher.Constraint("Tangent", 3, 1, 4, 1))
sketch7.addConstraint(Sketcher.Constraint("Tangent", 4, 2, 5, 1))
sketch7.addConstraint(Sketcher.Constraint("Tangent", 5, 2, 6, 1))
sketch7.addConstraint(Sketcher.Constraint("Tangent", 6, 2, 7, 1))
sketch7.addConstraint(Sketcher.Constraint("Tangent", 7, 2, 0, 1))
sketch7.addConstraint(Sketcher.Constraint("Horizontal", 0))
sketch7.addConstraint(Sketcher.Constraint("Vertical", 2))
sketch7.addConstraint(Sketcher.Constraint("Horizontal", 4))
sketch7.addConstraint(Sketcher.Constraint("Vertical", 6))
sketch7.addConstraint(Sketcher.Constraint("Equal", 1, 3))
sketch7.addConstraint(Sketcher.Constraint("Equal", 3, 5))
sketch7.addConstraint(Sketcher.Constraint("Equal", 5, 7))
sketch7.addConstraint(Sketcher.Constraint("Diameter", 8, 8.0))
sketch7.addConstraint(Sketcher.Constraint("Radius", 1, 7.5))
sketch7.addConstraint(Sketcher.Constraint("DistanceY", 2, 2, 2, 1, 16.0))
sketch7.addConstraint(Sketcher.Constraint("DistanceX", 0, 1, 0, 2, 17.5))
sketch7.addConstraint(Sketcher.Constraint("DistanceY", -1, 1, 1, 3, 8.0))
sketch7.addConstraint(Sketcher.Constraint("DistanceX", 5, 3, -1, 1, 87.0))
sketch7.addConstraint(Sketcher.Constraint("DistanceX", 8, 3, 1, 3, 16.0))
sketch7.addConstraint(Sketcher.Constraint("DistanceY", 8, 3, 0, 2, 9.0))
pad4 = doc.addObject("PartDesign::Pad", "Pad003")
body.addObject(pad4)
pad4.Profile = sketch7
pad4.Length = 5

# Sketch on XY plane
sketch8 = doc.addObject("Sketcher::SketchObject", "Sketch007")
body.addObject(sketch8)
sketch8.AttachmentSupport = (doc.XY_Plane, [""])
sketch8.MapMode = "FlatFace"
sketch8.addGeometry(Part.Circle(App.Vector(-85.5, -11, 0), App.Vector(0, 0, 1), 2), False)
sketch8.addConstraint(Sketcher.Constraint("Diameter", 0, 4.0))
sketch8.addConstraint(Sketcher.Constraint("DistanceY", 0, 3, -1, 1, 11.0))
sketch8.addConstraint(Sketcher.Constraint("DistanceX", 0, 3, -1, 1, 85.5))
pocket4 = doc.addObject("PartDesign::Pocket", "Pocket003")
body.addObject(pocket4)
pocket4.Profile = sketch8
pocket4.Type = "ThroughAll"
pocket4.Reversed = True

# Sketch on XY plane
sketch9 = doc.addObject("Sketcher::SketchObject", "Sketch008")
body.addObject(sketch9)
sketch9.AttachmentSupport = (doc.XY_Plane, [""])
sketch9.MapMode = "FlatFace"
sketch9.addGeometry(Part.Circle(App.Vector(-85.5, -11, 0), App.Vector(0, 0, 1), 3.5), False)
sketch9.addConstraint(Sketcher.Constraint("Diameter", 0, 7.0))
sketch9.addConstraint(Sketcher.Constraint("DistanceY", 0, 3, -1, 1, 11.0))
sketch9.addConstraint(Sketcher.Constraint("DistanceX", 0, 3, -1, 1, 85.5))
pocket5 = doc.addObject("PartDesign::Pocket", "Pocket004")
body.addObject(pocket5)
pocket5.Profile = sketch9
pocket5.Length = 2
pocket5.Reversed = True
doc.recompute()

linearpattern = doc.addObject("PartDesign::LinearPattern", "LinearPattern")
body.addObject(linearpattern)
linearpattern.Originals = [pad3]
linearpattern.Direction = (doc.Y_Axis, [""])
linearpattern.Mode = "offset"
linearpattern.Offset = 114
linearpattern.Occurrences = 2
linearpattern.Reversed = True
body.Tip = linearpattern

# Sketch on XZ plane
sketch10 = doc.addObject("Sketcher::SketchObject", "Sketch009")
body.addObject(sketch10)
sketch10.AttachmentSupport = (doc.XZ_Plane, [""])
sketch10.MapMode = "FlatFace"
sketch10.AttachmentOffset = App.Placement(App.Vector(0, 0, -180), App.Rotation())
sketch10.addGeometry(Part.LineSegment(App.Vector(-113.15, 3, 0), App.Vector(-113.15, 5, 0)), False)
sketch10.addGeometry(Part.LineSegment(App.Vector(-113.15, 5, 0), App.Vector(-103, 5, 0)), False)
sketch10.addGeometry(Part.LineSegment(App.Vector(-103, 5, 0), App.Vector(-103, 3, 0)), False)
sketch10.addGeometry(Part.LineSegment(App.Vector(-103, 3, 0), App.Vector(-113.15, 3, 0)), False)
sketch10.addGeometry(Part.LineSegment(App.Vector(103, 3, 0), App.Vector(103, 5, 0)), False)
sketch10.addGeometry(Part.LineSegment(App.Vector(103, 5, 0), App.Vector(113.15, 5, 0)), False)
sketch10.addGeometry(Part.LineSegment(App.Vector(113.15, 5, 0), App.Vector(113.15, 3, 0)), False)
sketch10.addGeometry(Part.LineSegment(App.Vector(113.15, 3, 0), App.Vector(103, 3, 0)), False)
sketch10.addConstraint(Sketcher.Constraint("Coincident", 0, 2, 1, 1))
sketch10.addConstraint(Sketcher.Constraint("Coincident", 1, 2, 2, 1))
sketch10.addConstraint(Sketcher.Constraint("Coincident", 2, 2, 3, 1))
sketch10.addConstraint(Sketcher.Constraint("Coincident", 3, 2, 0, 1))
sketch10.addConstraint(Sketcher.Constraint("Coincident", 4, 2, 5, 1))
sketch10.addConstraint(Sketcher.Constraint("Coincident", 5, 2, 6, 1))
sketch10.addConstraint(Sketcher.Constraint("Coincident", 6, 2, 7, 1))
sketch10.addConstraint(Sketcher.Constraint("Coincident", 7, 2, 4, 1))
sketch10.addConstraint(Sketcher.Constraint("Vertical", 0))
sketch10.addConstraint(Sketcher.Constraint("Horizontal", 1))
sketch10.addConstraint(Sketcher.Constraint("Vertical", 2))
sketch10.addConstraint(Sketcher.Constraint("Horizontal", 3))
sketch10.addConstraint(Sketcher.Constraint("Vertical", 4))
sketch10.addConstraint(Sketcher.Constraint("Horizontal", 5))
sketch10.addConstraint(Sketcher.Constraint("Vertical", 6))
sketch10.addConstraint(Sketcher.Constraint("Horizontal", 7))
sketch10.addConstraint(Sketcher.Constraint("Symmetric", 1, 2, 4, 2, -2))
sketch10.addConstraint(Sketcher.Constraint("Symmetric", 3, 2, 6, 2, -2))
sketch10.addConstraint(Sketcher.Constraint("DistanceY", 0, 1, 0, 2, 2.0))
sketch10.addConstraint(Sketcher.Constraint("DistanceY", -1, 1, 0, 2, 5.0))
sketch10.addConstraint(Sketcher.Constraint("DistanceX", 1, 2, -1, 1, 103.0))
sketch10.addConstraint(Sketcher.Constraint("DistanceX", 1, 1, 1, 2, 10.15))
pocket6 = doc.addObject("PartDesign::Pocket", "Pocket005")
body.addObject(pocket6)
pocket6.Profile = sketch10
pocket6.Type = "ThroughAll"
pocket6.Midplane = True

doc.recompute()
